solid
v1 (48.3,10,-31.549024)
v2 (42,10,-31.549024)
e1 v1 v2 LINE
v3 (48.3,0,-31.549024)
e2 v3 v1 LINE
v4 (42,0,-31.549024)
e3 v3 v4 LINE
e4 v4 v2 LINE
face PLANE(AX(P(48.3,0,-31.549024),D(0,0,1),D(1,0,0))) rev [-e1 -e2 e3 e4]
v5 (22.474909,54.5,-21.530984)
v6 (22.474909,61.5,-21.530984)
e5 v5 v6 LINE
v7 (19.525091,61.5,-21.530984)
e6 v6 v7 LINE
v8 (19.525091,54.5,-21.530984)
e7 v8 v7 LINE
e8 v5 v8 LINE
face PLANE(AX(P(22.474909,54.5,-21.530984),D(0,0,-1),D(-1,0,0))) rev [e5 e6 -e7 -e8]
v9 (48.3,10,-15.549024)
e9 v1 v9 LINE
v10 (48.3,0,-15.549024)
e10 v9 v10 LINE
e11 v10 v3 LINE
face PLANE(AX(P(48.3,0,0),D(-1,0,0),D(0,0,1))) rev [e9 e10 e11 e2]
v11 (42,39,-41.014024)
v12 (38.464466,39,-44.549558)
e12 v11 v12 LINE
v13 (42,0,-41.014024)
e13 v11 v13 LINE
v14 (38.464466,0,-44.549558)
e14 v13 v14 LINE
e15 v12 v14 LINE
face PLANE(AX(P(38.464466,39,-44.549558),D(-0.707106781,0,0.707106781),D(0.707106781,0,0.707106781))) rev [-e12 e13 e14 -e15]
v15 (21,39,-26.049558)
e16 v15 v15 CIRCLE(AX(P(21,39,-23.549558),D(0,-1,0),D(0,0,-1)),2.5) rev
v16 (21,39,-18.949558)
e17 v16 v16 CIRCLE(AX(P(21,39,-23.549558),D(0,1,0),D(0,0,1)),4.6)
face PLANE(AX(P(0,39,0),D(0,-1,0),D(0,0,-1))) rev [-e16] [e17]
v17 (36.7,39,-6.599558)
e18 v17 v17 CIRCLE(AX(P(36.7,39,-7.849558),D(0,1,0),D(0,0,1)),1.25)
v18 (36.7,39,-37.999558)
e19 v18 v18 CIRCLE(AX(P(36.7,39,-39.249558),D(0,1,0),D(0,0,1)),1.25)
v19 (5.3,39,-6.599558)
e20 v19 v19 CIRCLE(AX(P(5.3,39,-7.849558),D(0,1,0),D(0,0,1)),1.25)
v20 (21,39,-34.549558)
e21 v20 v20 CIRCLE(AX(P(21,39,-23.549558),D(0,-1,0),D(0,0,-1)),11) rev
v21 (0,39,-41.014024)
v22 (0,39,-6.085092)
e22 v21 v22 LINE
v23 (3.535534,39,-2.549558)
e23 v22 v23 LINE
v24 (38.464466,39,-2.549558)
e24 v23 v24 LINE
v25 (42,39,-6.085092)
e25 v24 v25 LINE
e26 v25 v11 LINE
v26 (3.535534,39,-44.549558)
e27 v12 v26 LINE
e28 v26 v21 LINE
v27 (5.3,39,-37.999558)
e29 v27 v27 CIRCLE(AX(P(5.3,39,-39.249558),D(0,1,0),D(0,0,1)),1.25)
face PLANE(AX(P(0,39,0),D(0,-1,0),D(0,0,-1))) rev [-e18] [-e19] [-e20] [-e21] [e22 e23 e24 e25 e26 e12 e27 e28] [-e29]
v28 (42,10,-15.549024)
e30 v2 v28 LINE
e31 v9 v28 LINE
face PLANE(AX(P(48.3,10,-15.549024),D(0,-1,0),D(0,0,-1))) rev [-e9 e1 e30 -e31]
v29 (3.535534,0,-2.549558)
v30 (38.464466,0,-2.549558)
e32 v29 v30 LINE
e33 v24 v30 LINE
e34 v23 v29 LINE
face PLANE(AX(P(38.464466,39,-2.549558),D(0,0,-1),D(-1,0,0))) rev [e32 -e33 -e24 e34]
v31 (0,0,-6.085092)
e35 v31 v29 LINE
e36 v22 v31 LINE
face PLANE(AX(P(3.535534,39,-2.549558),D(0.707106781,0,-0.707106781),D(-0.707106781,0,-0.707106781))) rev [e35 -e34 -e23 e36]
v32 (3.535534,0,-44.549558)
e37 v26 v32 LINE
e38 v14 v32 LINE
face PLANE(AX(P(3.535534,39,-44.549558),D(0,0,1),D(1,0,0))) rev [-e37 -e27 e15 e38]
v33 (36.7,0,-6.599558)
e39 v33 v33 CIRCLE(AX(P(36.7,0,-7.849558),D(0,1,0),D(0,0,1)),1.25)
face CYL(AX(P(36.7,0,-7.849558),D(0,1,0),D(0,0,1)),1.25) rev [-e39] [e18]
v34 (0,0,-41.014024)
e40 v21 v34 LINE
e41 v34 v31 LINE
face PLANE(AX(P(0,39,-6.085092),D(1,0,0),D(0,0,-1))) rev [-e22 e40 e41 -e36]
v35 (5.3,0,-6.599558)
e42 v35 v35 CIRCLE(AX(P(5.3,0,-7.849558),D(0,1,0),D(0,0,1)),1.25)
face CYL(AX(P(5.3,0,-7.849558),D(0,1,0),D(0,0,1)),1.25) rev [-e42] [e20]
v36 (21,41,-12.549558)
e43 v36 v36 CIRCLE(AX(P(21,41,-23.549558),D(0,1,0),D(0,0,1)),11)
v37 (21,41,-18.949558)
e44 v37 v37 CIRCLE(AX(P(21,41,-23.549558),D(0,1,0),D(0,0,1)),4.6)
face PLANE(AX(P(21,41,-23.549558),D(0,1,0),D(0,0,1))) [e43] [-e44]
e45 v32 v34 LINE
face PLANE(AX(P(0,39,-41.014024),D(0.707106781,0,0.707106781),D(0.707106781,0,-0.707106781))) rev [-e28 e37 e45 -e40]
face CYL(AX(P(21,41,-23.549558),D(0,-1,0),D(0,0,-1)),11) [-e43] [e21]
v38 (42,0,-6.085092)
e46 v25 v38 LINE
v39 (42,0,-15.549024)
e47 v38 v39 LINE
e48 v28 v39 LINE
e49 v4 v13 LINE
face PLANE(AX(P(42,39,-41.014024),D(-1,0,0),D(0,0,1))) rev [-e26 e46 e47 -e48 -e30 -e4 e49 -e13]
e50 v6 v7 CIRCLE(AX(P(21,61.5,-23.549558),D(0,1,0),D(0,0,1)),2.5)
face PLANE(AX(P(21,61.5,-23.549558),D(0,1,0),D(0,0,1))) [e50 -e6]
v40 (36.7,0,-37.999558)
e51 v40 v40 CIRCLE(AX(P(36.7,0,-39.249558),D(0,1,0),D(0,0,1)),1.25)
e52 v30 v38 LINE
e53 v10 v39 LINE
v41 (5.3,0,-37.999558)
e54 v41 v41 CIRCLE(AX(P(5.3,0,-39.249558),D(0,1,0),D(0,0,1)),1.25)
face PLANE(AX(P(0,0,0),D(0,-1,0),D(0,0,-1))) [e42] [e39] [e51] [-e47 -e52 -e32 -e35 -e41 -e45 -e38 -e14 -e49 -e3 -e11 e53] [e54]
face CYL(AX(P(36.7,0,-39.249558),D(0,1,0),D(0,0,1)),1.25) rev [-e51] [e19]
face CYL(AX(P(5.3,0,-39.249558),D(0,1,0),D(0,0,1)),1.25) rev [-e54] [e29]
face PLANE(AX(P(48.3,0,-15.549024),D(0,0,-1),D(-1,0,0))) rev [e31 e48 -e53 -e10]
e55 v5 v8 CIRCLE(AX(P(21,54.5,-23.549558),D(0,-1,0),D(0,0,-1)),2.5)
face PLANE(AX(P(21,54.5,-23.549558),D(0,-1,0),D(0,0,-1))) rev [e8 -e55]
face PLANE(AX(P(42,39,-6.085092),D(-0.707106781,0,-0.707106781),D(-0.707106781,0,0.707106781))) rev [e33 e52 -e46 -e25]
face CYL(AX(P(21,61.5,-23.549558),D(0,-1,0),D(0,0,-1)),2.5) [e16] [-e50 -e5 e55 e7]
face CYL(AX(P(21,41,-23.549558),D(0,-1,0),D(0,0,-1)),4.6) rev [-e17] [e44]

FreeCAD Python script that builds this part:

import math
import FreeCAD as App
import Part
import Sketcher
Q = App.Units.Quantity


def add_polygon(sketch, points):
    """Adds a closed chain of lines whose ends are joined by coincident constraints."""
    first, n = sketch.GeometryCount, len(points)
    for a, b in zip(points, points[1:] + points[:1]):
        sketch.addGeometry(Part.LineSegment(App.Vector(*a, 0), App.Vector(*b, 0)), False)
    for i in range(n):
        sketch.addConstraint(Sketcher.Constraint("Coincident", first + i, 2, first + (i + 1) % n, 1))

doc = App.newDocument("Part")
body = doc.addObject("PartDesign::Body", "Body")

# Sketch on XZ plane
sketch1 = doc.addObject("Sketcher::SketchObject", "Sketch")
body.addObject(sketch1)
sketch1.AttachmentSupport = (doc.XZ_Plane, [""])
sketch1.MapMode = "FlatFace"
add_polygon(sketch1, [(0, -6.085092), (3.535534, -2.549558), (38.464466, -2.549558), (42, -6.085092), (42, -41.014024), (38.464466, -44.549558), (3.535534, -44.549558), (0, -41.014024)])  # lines 0-7
sketch1.addConstraint(Sketcher.Constraint("Horizontal", 1))
sketch1.addConstraint(Sketcher.Constraint("Vertical", 3))
sketch1.addConstraint(Sketcher.Constraint("Horizontal", 5))
sketch1.addConstraint(Sketcher.Constraint("Vertical", 7))
sketch1.addConstraint(Sketcher.Constraint("PointOnObject", 6, 2, -2))
sketch1.addConstraint(Sketcher.Constraint("Perpendicular", 0, 2))
sketch1.addConstraint(Sketcher.Constraint("Perpendicular", 2, 4))
sketch1.addConstraint(Sketcher.Constraint("Perpendicular", 4, 6))
sketch1.addConstraint(Sketcher.Constraint("Horizontal", 3, 2, 6, 2))
sketch1.addConstraint(Sketcher.Constraint("Horizontal", 2, 2, 7, 2))
sketch1.addConstraint(Sketcher.Constraint("Vertical", 1, 2, 4, 2))
sketch1.addConstraint(Sketcher.Constraint("Vertical", 0, 2, 5, 2))
sketch1.addConstraint(Sketcher.Constraint("Equal", 5, 3))
sketch1.addConstraint(Sketcher.Constraint("Distance", 0, Q("5 mm")))
sketch1.addConstraint(Sketcher.Constraint("DistanceX", -1, 1, 2, 2, Q("42 mm")))
sketch1.addConstraint(Sketcher.Constraint("DistanceY", 0, 2, -1, 1, Q("2.549558 mm")))
pad1 = doc.addObject("PartDesign::Pad", "Pad")
body.addObject(pad1)
pad1.Profile = sketch1
pad1.Length = 39
pad1.Reversed = True

# Sketch on XZ plane
sketch2 = doc.addObject("Sketcher::SketchObject", "Sketch001")
body.addObject(sketch2)
sketch2.AttachmentSupport = (doc.XZ_Plane, [""])
sketch2.MapMode = "FlatFace"
sketch2.AttachmentOffset = App.Placement(App.Vector(0, 0, -39), App.Rotation())
sketch2.addGeometry(Part.Circle(App.Vector(5.3, -39.249558, 0), App.Vector(0, 0, 1), 1.25), False)
sketch2.addGeometry(Part.Circle(App.Vector(36.7, -39.249558, 0), App.Vector(0, 0, 1), 1.25), False)
sketch2.addGeometry(Part.Circle(App.Vector(36.7, -7.849558, 0), App.Vector(0, 0, 1), 1.25), False)
sketch2.addGeometry(Part.Circle(App.Vector(5.3, -7.849558, 0), App.Vector(0, 0, 1), 1.25), False)
sketch2.addConstraint(Sketcher.Constraint("Equal", 0, 1))
sketch2.addConstraint(Sketcher.Constraint("Equal", 1, 2))
sketch2.addConstraint(Sketcher.Constraint("Equal", 2, 3))
sketch2.addConstraint(Sketcher.Constraint("Horizontal", 0, 3, 1, 3))
sketch2.addConstraint(Sketcher.Constraint("Horizontal", 2, 3, 3, 3))
sketch2.addConstraint(Sketcher.Constraint("Vertical", 1, 3, 2, 3))
sketch2.addConstraint(Sketcher.Constraint("Vertical", 0, 3, 3, 3))
sketch2.addConstraint(Sketcher.Constraint("Diameter", 0, Q("2.5 mm")))
sketch2.addConstraint(Sketcher.Constraint("DistanceX", -1, 1, 0, 3, Q("5.3 mm")))
sketch2.addConstraint(Sketcher.Constraint("DistanceX", -1, 1, 1, 3, Q("36.7 mm")))
sketch2.addConstraint(Sketcher.Constraint("DistanceY", 1, 3, 2, 3, Q("31.4 mm")))
sketch2.addConstraint(Sketcher.Constraint("DistanceY", 0, 3, -1, 1, Q("39.249558 mm")))
pocket1 = doc.addObject("PartDesign::Pocket", "Pocket")
body.addObject(pocket1)
pocket1.Profile = sketch2
pocket1.Length = 39
pocket1.Reversed = True

# Sketch on XZ plane
sketch3 = doc.addObject("Sketcher::SketchObject", "Sketch002")
body.addObject(sketch3)
sketch3.AttachmentSupport = (doc.XZ_Plane, [""])
sketch3.MapMode = "FlatFace"
sketch3.AttachmentOffset = App.Placement(App.Vector(0, 0, -39), App.Rotation())
sketch3.addGeometry(Part.Circle(App.Vector(21, -23.549558, 0), App.Vector(0, 0, 1), 11), False)
sketch3.addGeometry(Part.Circle(App.Vector(21, -23.549558, 0), App.Vector(0, 0, 1), 4.6), False)
sketch3.addConstraint(Sketcher.Constraint("Coincident", 1, 3, 0, 3))
sketch3.addConstraint(Sketcher.Constraint("Diameter", 0, Q("22 mm")))
sketch3.addConstraint(Sketcher.Constraint("Diameter", 1, Q("9.2 mm")))
sketch3.addConstraint(Sketcher.Constraint("DistanceX", -1, 1, 0, 3, Q("21 mm")))
sketch3.addConstraint(Sketcher.Constraint("DistanceY", 0, 3, -1, 1, Q("23.549558 mm")))
pad2 = doc.addObject("PartDesign::Pad", "Pad001")
body.addObject(pad2)
pad2.Profile = sketch3
pad2.Length = 2
pad2.Reversed = True

# Sketch on XZ plane
sketch4 = doc.addObject("Sketcher::SketchObject", "Sketch003")
body.addObject(sketch4)
sketch4.AttachmentSupport = (doc.XZ_Plane, [""])
sketch4.MapMode = "FlatFace"
sketch4.AttachmentOffset = App.Placement(App.Vector(0, 0, -39), App.Rotation())
sketch4.addGeometry(Part.Circle(App.Vector(21, -23.549558, 0), App.Vector(0, 0, 1), 2.5), False)
sketch4.addConstraint(Sketcher.Constraint("Diameter", 0, Q("5 mm")))
sketch4.addConstraint(Sketcher.Constraint("DistanceX", -1, 1, 0, 3, Q("21 mm")))
sketch4.addConstraint(Sketcher.Constraint("DistanceY", 0, 3, -1, 1, Q("23.549558 mm")))
pad3 = doc.addObject("PartDesign::Pad", "Pad002")
body.addObject(pad3)
pad3.Profile = sketch4
pad3.Length = 22.5
pad3.Reversed = True

# Sketch on XZ plane
sketch5 = doc.addObject("Sketcher::SketchObject", "Sketch004")
body.addObject(sketch5)
sketch5.AttachmentSupport = (doc.XZ_Plane, [""])
sketch5.MapMode = "FlatFace"
sketch5.AttachmentOffset = App.Placement(App.Vector(0, 0, -54.5), App.Rotation())
sketch5.addGeometry(Part.LineSegment(App.Vector(22.474909, -21.530984, 0), App.Vector(19.525091, -21.530984, 0)), False)
sketch5.addGeometry(Part.ArcOfCircle(Part.Circle(App.Vector(21, -23.549558, 0), App.Vector(0, 0, 1), 2.5), math.radians(53.84557), math.radians(126.15443)), False)
sketch5.addConstraint(Sketcher.Constraint("Coincident", 0, 1, 1, 1))
sketch5.addConstraint(Sketcher.Constraint("Coincident", 1, 2, 0, 2))
sketch5.addConstraint(Sketcher.Constraint("Horizontal", 0))
sketch5.addConstraint(Sketcher.Constraint("Radius", 1, Q("2.5 mm")))
sketch5.addConstraint(Sketcher.Constraint("DistanceX", -1, 1, 1, 3, Q("21 mm")))
sketch5.addConstraint(Sketcher.Constraint("DistanceX", 0, 2, 0, 1, Q("2.949818 mm")))
sketch5.addConstraint(Sketcher.Constraint("DistanceY", 1, 3, -1, 1, Q("23.549558 mm")))
pocket2 = doc.addObject("PartDesign::Pocket", "Pocket001")
body.addObject(pocket2)
pocket2.Profile = sketch5
pocket2.Length = 7

# Sketch on YZ plane
sketch6 = doc.addObject("Sketcher::SketchObject", "Sketch005")
body.addObject(sketch6)
sketch6.AttachmentSupport = (doc.YZ_Plane, [""])
sketch6.MapMode = "FlatFace"
sketch6.AttachmentOffset = App.Placement(App.Vector(0, 0, 42), App.Rotation())
add_polygon(sketch6, [(10, -15.549024), (0, -15.549024), (0, -31.549024), (10, -31.549024)])  # lines 0-3
sketch6.addConstraint(Sketcher.Constraint("Horizontal", 0))
sketch6.addConstraint(Sketcher.Constraint("Vertical", 1))
sketch6.addConstraint(Sketcher.Constraint("Horizontal", 2))
sketch6.addConstraint(Sketcher.Constraint("Vertical", 3))
sketch6.addConstraint(Sketcher.Constraint("PointOnObject", 0, 2, -2))
sketch6.addConstraint(Sketcher.Constraint("DistanceX", 0, 2, 0, 1, Q("10 mm")))
sketch6.addConstraint(Sketcher.Constraint("DistanceY", 1, 2, 1, 1, Q("16 mm")))
sketch6.addConstraint(Sketcher.Constraint("DistanceY", 0, 2, -1, 1, Q("15.549024 mm")))
pad4 = doc.addObject("PartDesign::Pad", "Pad003")
body.addObject(pad4)
pad4.Profile = sketch6
pad4.Length = 6.3

doc.recompute()
